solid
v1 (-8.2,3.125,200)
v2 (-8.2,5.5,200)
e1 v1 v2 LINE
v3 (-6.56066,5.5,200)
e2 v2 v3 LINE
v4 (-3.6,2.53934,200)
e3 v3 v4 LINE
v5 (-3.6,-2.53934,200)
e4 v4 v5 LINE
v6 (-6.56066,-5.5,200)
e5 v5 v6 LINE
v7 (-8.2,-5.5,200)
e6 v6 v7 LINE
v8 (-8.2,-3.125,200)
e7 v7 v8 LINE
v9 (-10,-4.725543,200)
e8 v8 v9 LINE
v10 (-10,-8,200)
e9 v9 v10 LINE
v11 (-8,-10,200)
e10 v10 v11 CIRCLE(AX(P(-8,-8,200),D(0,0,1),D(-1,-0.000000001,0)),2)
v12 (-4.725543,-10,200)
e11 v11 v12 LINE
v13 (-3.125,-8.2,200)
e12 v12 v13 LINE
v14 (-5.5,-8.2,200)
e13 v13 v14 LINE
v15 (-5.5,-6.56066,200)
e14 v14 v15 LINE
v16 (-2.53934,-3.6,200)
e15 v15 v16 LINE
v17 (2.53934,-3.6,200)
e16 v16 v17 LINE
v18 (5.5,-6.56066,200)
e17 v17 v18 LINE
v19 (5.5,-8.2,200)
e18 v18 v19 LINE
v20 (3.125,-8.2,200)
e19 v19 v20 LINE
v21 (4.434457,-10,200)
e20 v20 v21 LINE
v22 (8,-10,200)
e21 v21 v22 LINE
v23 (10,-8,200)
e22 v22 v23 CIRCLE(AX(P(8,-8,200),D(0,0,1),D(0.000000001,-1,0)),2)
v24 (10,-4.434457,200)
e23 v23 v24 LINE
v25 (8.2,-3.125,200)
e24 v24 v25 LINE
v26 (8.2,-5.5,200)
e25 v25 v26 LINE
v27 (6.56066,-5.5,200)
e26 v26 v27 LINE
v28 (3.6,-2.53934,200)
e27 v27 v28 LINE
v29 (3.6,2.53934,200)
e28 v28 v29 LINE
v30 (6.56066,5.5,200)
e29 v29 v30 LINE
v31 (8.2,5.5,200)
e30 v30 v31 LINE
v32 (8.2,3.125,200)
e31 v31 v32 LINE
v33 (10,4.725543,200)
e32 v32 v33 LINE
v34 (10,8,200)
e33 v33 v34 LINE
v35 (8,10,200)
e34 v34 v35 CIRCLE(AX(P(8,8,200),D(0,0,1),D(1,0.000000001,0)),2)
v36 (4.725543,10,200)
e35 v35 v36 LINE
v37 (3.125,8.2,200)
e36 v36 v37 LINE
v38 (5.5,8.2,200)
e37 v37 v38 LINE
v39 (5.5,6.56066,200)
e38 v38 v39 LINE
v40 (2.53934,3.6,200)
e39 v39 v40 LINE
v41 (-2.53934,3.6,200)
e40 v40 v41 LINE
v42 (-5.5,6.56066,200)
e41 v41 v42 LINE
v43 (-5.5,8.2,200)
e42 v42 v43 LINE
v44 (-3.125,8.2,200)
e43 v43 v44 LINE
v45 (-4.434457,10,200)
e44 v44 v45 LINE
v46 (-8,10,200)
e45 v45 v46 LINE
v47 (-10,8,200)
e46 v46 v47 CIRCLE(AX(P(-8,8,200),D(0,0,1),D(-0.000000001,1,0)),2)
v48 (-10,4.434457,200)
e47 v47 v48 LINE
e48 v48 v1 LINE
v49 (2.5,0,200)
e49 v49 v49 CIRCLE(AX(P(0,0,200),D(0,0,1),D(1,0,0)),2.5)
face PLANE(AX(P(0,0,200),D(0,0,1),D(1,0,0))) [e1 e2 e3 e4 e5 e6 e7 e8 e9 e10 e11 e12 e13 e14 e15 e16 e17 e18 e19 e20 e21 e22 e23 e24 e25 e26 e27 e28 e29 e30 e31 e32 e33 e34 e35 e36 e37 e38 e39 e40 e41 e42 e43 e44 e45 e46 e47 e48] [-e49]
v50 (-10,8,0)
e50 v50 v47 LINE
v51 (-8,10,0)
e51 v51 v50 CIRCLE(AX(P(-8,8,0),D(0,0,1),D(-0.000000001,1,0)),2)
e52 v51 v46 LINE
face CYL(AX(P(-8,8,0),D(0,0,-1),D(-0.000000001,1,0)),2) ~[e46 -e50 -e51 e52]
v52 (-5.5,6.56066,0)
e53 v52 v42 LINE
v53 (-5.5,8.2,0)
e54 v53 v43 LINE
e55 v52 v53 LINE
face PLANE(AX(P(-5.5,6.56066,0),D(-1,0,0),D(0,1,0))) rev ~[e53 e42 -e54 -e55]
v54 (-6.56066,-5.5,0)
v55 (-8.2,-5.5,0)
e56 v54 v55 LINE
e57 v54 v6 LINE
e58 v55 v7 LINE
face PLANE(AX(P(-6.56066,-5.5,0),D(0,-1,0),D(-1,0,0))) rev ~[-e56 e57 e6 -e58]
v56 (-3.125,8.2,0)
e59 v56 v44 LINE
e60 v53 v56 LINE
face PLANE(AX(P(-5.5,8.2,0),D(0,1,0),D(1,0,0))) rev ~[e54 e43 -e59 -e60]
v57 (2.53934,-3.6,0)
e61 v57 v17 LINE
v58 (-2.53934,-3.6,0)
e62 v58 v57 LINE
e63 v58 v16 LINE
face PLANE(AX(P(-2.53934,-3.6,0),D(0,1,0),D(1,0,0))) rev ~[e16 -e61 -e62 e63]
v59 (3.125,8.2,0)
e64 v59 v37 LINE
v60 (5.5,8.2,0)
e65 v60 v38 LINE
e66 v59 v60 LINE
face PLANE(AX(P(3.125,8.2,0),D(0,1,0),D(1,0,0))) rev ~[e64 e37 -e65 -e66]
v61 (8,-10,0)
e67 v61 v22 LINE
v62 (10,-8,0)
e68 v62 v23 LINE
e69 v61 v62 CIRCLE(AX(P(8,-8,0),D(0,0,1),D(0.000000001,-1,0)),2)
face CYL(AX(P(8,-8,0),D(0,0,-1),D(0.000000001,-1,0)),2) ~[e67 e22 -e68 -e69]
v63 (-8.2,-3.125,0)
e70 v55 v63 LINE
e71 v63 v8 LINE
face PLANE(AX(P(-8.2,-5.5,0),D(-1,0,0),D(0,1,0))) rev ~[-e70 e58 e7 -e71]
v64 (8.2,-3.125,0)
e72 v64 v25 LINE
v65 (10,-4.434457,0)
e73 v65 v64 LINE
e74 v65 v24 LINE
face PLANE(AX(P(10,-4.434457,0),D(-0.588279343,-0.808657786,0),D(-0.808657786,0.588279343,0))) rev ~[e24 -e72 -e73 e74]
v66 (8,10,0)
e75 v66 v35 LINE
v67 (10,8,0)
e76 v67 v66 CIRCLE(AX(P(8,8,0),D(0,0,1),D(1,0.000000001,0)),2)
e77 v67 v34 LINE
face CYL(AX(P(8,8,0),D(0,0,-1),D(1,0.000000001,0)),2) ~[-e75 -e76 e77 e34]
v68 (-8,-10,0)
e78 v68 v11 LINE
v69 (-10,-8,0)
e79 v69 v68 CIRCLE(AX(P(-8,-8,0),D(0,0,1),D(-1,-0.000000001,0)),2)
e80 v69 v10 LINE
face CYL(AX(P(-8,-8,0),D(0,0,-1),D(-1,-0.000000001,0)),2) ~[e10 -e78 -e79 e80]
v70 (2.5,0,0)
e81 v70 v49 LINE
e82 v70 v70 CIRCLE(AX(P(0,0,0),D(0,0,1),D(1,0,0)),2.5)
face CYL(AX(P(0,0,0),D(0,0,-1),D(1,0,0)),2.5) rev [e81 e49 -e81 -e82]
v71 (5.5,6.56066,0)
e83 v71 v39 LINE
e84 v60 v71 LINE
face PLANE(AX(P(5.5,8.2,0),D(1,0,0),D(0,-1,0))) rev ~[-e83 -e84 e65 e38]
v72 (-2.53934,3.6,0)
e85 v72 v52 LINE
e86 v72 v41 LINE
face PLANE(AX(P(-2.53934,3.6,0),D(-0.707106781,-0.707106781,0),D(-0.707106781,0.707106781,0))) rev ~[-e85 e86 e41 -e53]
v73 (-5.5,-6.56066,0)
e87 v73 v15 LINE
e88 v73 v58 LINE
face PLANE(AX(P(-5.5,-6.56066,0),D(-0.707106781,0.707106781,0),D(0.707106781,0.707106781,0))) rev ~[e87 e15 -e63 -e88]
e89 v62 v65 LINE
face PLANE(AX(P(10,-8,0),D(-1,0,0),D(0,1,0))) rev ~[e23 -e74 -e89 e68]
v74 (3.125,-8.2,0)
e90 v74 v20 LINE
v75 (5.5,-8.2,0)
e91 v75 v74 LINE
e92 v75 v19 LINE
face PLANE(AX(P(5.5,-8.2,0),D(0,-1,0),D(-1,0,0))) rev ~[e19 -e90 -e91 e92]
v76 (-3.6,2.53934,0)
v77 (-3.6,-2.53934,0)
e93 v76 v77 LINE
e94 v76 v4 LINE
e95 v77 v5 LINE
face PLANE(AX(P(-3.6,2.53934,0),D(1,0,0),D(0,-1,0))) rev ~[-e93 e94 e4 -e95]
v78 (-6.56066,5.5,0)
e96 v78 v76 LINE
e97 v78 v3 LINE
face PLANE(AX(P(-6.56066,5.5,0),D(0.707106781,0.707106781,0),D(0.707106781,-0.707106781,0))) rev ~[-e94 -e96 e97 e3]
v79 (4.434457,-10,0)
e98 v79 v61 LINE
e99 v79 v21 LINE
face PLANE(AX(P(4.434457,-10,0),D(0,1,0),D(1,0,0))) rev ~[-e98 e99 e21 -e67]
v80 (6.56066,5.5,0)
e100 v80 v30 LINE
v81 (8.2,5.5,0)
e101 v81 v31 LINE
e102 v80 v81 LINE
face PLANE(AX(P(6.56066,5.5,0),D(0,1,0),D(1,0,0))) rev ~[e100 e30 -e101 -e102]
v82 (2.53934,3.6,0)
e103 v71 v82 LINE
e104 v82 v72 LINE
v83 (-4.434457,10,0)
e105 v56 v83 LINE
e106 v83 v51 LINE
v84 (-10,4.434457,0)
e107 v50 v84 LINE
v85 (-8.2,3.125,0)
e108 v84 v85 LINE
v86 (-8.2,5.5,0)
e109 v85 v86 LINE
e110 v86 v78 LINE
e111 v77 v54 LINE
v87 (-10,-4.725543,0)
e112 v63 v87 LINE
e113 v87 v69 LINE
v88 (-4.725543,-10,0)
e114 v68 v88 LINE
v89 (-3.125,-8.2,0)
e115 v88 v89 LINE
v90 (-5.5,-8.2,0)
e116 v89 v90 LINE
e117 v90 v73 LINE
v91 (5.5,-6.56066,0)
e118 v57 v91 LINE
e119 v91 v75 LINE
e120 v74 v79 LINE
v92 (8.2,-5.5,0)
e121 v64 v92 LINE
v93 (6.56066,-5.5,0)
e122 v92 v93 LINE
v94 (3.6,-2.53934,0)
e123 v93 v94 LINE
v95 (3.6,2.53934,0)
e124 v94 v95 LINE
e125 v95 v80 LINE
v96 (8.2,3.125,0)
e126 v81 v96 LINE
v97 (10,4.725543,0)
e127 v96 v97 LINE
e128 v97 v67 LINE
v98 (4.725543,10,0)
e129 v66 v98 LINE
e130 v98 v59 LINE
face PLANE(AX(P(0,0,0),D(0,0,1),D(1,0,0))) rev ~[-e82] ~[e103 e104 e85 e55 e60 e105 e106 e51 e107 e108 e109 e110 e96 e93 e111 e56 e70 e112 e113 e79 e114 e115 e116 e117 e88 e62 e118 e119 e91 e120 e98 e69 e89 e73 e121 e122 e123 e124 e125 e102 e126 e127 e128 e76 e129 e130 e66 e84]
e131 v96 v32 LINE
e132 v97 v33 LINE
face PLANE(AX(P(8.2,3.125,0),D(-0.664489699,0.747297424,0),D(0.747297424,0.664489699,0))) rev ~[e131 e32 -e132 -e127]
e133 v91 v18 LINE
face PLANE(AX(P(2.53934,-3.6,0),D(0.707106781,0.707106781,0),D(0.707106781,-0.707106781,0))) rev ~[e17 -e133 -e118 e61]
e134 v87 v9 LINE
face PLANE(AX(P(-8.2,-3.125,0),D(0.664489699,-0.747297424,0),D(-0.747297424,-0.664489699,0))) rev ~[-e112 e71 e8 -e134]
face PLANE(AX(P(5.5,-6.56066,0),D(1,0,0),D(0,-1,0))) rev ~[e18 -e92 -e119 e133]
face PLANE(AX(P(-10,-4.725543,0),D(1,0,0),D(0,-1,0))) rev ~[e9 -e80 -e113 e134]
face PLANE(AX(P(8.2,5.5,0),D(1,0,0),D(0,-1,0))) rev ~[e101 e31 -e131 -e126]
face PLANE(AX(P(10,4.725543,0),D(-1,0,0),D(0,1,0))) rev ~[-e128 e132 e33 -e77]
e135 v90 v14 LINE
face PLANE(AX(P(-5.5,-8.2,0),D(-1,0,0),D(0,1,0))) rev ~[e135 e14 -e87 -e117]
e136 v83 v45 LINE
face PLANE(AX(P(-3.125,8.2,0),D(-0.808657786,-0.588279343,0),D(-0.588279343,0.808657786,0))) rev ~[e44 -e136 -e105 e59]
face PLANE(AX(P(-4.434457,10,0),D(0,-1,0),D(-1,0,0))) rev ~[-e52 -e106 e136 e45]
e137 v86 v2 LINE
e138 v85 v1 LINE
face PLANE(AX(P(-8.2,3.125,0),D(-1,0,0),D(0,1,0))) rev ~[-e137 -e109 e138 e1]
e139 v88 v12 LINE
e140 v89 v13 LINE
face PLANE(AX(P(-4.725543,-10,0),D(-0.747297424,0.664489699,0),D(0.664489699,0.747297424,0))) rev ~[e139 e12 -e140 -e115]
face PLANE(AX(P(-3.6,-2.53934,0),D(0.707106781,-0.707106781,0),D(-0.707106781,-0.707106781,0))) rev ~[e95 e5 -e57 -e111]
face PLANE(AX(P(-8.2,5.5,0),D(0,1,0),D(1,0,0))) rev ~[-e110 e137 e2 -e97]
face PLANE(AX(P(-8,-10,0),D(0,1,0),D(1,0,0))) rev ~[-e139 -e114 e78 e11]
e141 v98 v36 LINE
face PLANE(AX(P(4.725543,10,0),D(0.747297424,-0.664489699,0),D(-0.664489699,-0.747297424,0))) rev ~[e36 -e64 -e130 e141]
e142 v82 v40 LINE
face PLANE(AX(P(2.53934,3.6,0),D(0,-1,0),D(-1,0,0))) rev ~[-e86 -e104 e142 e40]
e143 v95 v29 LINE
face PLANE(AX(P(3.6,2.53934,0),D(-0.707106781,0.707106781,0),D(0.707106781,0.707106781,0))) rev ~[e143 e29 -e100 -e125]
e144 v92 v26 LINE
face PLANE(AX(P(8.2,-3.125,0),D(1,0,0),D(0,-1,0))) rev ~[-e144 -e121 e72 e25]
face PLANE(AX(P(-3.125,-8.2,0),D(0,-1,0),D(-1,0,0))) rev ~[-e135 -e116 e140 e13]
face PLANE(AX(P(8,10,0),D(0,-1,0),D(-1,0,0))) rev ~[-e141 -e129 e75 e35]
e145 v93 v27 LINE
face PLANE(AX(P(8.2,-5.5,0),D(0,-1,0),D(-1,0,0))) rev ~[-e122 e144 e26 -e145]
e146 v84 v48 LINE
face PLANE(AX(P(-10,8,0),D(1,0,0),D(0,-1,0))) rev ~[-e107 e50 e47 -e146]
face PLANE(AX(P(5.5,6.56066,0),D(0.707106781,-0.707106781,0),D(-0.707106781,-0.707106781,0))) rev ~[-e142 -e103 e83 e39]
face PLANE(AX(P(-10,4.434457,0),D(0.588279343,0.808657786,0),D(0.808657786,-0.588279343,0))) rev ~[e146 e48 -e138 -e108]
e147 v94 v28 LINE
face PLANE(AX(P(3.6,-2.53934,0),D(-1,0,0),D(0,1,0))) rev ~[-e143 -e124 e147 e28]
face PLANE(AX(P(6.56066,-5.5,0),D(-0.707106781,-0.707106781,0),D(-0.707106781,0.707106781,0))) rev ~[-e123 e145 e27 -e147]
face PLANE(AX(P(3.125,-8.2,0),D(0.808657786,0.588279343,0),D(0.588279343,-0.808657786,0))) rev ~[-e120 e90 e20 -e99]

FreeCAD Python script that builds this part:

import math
import FreeCAD as App
import Part
import Sketcher
from FreeCAD import Vector
Q = App.Units.Quantity

doc = App.newDocument("Part")
body = doc.addObject("PartDesign::Body", "Body")

# Sketch on XY plane
sketch1 = body.newObject("Sketcher::SketchObject", "Sketch")
sketch1.AttachmentSupport = (doc.getObject("XY_Plane"), [""])
sketch1.MapMode = "FlatFace"
sketch1.addGeometry([
    Part.LineSegment(Vector(-4.725543, -10, 0), Vector(-3.125, -8.2, 0)),  # 0
    Part.LineSegment(Vector(-3.125, -8.2, 0), Vector(-5.5, -8.2, 0)),  # 1
    Part.LineSegment(Vector(-5.5, -8.2, 0), Vector(-5.5, -6.56066, 0)),  # 2
    Part.LineSegment(Vector(-5.5, -6.56066, 0), Vector(-2.53934, -3.6, 0)),  # 3
    Part.LineSegment(Vector(-2.53934, -3.6, 0), Vector(2.53934, -3.6, 0)),  # 4
    Part.LineSegment(Vector(2.53934, -3.6, 0), Vector(5.5, -6.56066, 0)),  # 5
    Part.LineSegment(Vector(5.5, -6.56066, 0), Vector(5.5, -8.2, 0)),  # 6
    Part.LineSegment(Vector(5.5, -8.2, 0), Vector(3.125, -8.2, 0)),  # 7
    Part.LineSegment(Vector(3.125, -8.2, 0), Vector(4.434457, -10, 0)),  # 8
    Part.LineSegment(Vector(4.434457, -10, 0), Vector(8, -10, 0)),  # 9
    Part.ArcOfCircle(Part.Circle(Vector(8, -8, 0), Vector(0, 0, 1), 2), math.radians(-90), math.radians(0)),  # 10
    Part.LineSegment(Vector(10, -8, 0), Vector(10, -4.434457, 0)),  # 11
    Part.LineSegment(Vector(10, -4.434457, 0), Vector(8.2, -3.125, 0)),  # 12
    Part.LineSegment(Vector(8.2, -3.125, 0), Vector(8.2, -5.5, 0)),  # 13
    Part.LineSegment(Vector(8.2, -5.5, 0), Vector(6.56066, -5.5, 0)),  # 14
    Part.LineSegment(Vector(6.56066, -5.5, 0), Vector(3.6, -2.53934, 0)),  # 15
    Part.LineSegment(Vector(3.6, -2.53934, 0), Vector(3.6, 2.53934, 0)),  # 16
    Part.LineSegment(Vector(3.6, 2.53934, 0), Vector(6.56066, 5.5, 0)),  # 17
    Part.LineSegment(Vector(6.56066, 5.5, 0), Vector(8.2, 5.5, 0)),  # 18
    Part.LineSegment(Vector(8.2, 5.5, 0), Vector(8.2, 3.125, 0)),  # 19
    Part.LineSegment(Vector(8.2, 3.125, 0), Vector(10, 4.725543, 0)),  # 20
    Part.LineSegment(Vector(10, 4.725543, 0), Vector(10, 8, 0)),  # 21
    Part.ArcOfCircle(Part.Circle(Vector(8, 8, 0), Vector(0, 0, 1), 2), math.radians(0), math.radians(90)),  # 22
    Part.LineSegment(Vector(8, 10, 0), Vector(4.725543, 10, 0)),  # 23
    Part.LineSegment(Vector(4.725543, 10, 0), Vector(3.125, 8.2, 0)),  # 24
    Part.LineSegment(Vector(3.125, 8.2, 0), Vector(5.5, 8.2, 0)),  # 25
    Part.LineSegment(Vector(5.5, 8.2, 0), Vector(5.5, 6.56066, 0)),  # 26
    Part.LineSegment(Vector(5.5, 6.56066, 0), Vector(2.53934, 3.6, 0)),  # 27
    Part.LineSegment(Vector(2.53934, 3.6, 0), Vector(-2.53934, 3.6, 0)),  # 28
    Part.LineSegment(Vector(-2.53934, 3.6, 0), Vector(-5.5, 6.56066, 0)),  # 29
    Part.LineSegment(Vector(-5.5, 6.56066, 0), Vector(-5.5, 8.2, 0)),  # 30
    Part.LineSegment(Vector(-5.5, 8.2, 0), Vector(-3.125, 8.2, 0)),  # 31
    Part.LineSegment(Vector(-3.125, 8.2, 0), Vector(-4.434457, 10, 0)),  # 32
    Part.LineSegment(Vector(-4.434457, 10, 0), Vector(-8, 10, 0)),  # 33
    Part.ArcOfCircle(Part.Circle(Vector(-8, 8, 0), Vector(0, 0, 1), 2), math.radians(90), math.radians(180)),  # 34
    Part.LineSegment(Vector(-10, 8, 0), Vector(-10, 4.434457, 0)),  # 35
    Part.LineSegment(Vector(-10, 4.434457, 0), Vector(-8.2, 3.125, 0)),  # 36
    Part.LineSegment(Vector(-8.2, 3.125, 0), Vector(-8.2, 5.5, 0)),  # 37
    Part.LineSegment(Vector(-8.2, 5.5, 0), Vector(-6.56066, 5.5, 0)),  # 38
    Part.LineSegment(Vector(-6.56066, 5.5, 0), Vector(-3.6, 2.53934, 0)),  # 39
    Part.LineSegment(Vector(-3.6, 2.53934, 0), Vector(-3.6, -2.53934, 0)),  # 40
    Part.LineSegment(Vector(-3.6, -2.53934, 0), Vector(-6.56066, -5.5, 0)),  # 41
    Part.LineSegment(Vector(-6.56066, -5.5, 0), Vector(-8.2, -5.5, 0)),  # 42
    Part.LineSegment(Vector(-8.2, -5.5, 0), Vector(-8.2, -3.125, 0)),  # 43
    Part.LineSegment(Vector(-8.2, -3.125, 0), Vector(-10, -4.725543, 0)),  # 44
    Part.LineSegment(Vector(-10, -4.725543, 0), Vector(-10, -8, 0)),  # 45
    Part.ArcOfCircle(Part.Circle(Vector(-8, -8, 0), Vector(0, 0, 1), 2), math.radians(-180), math.radians(-90)),  # 46
    Part.LineSegment(Vector(-8, -10, 0), Vector(-4.725543, -10, 0)),  # 47
    Part.Circle(Vector(0, 0, 0), Vector(0, 0, 1), 2.5),  # 48
], False)
sketch1.addConstraint([
    Sketcher.Constraint("Coincident", 0, 2, 1, 1),
    Sketcher.Constraint("Coincident", 1, 2, 2, 1),
    Sketcher.Constraint("Coincident", 2, 2, 3, 1),
    Sketcher.Constraint("Coincident", 3, 2, 4, 1),
    Sketcher.Constraint("Coincident", 4, 2, 5, 1),
    Sketcher.Constraint("Coincident", 5, 2, 6, 1),
    Sketcher.Constraint("Coincident", 6, 2, 7, 1),
    Sketcher.Constraint("Coincident", 7, 2, 8, 1),
    Sketcher.Constraint("Coincident", 8, 2, 9, 1),
    Sketcher.Constraint("Tangent", 9, 2, 10, 1),
    Sketcher.Constraint("Tangent", 10, 2, 11, 1),
    Sketcher.Constraint("Coincident", 11, 2, 12, 1),
    Sketcher.Constraint("Coincident", 12, 2, 13, 1),
    Sketcher.Constraint("Coincident", 13, 2, 14, 1),
    Sketcher.Constraint("Coincident", 14, 2, 15, 1),
    Sketcher.Constraint("Coincident", 15, 2, 16, 1),
    Sketcher.Constraint("Coincident", 16, 2, 17, 1),
    Sketcher.Constraint("Coincident", 17, 2, 18, 1),
    Sketcher.Constraint("Coincident", 18, 2, 19, 1),
    Sketcher.Constraint("Coincident", 19, 2, 20, 1),
    Sketcher.Constraint("Coincident", 20, 2, 21, 1),
    Sketcher.Constraint("Tangent", 21, 2, 22, 1),
    Sketcher.Constraint("Tangent", 22, 2, 23, 1),
    Sketcher.Constraint("Coincident", 23, 2, 24, 1),
    Sketcher.Constraint("Coincident", 24, 2, 25, 1),
    Sketcher.Constraint("Coincident", 25, 2, 26, 1),
    Sketcher.Constraint("Coincident", 26, 2, 27, 1),
    Sketcher.Constraint("Coincident", 27, 2, 28, 1),
    Sketcher.Constraint("Coincident", 28, 2, 29, 1),
    Sketcher.Constraint("Coincident", 29, 2, 30, 1),
    Sketcher.Constraint("Coincident", 30, 2, 31, 1),
    Sketcher.Constraint("Coincident", 31, 2, 32, 1),
    Sketcher.Constraint("Coincident", 32, 2, 33, 1),
    Sketcher.Constraint("Tangent", 33, 2, 34, 1),
    Sketcher.Constraint("Tangent", 34, 2, 35, 1),
    Sketcher.Constraint("Coincident", 35, 2, 36, 1),
    Sketcher.Constraint("Coincident", 36, 2, 37, 1),
    Sketcher.Constraint("Coincident", 37, 2, 38, 1),
    Sketcher.Constraint("Coincident", 38, 2, 39, 1),
    Sketcher.Constraint("Coincident", 39, 2, 40, 1),
    Sketcher.Constraint("Coincident", 40, 2, 41, 1),
    Sketcher.Constraint("Coincident", 41, 2, 42, 1),
    Sketcher.Constraint("Coincident", 42, 2, 43, 1),
    Sketcher.Constraint("Coincident", 43, 2, 44, 1),
    Sketcher.Constraint("Coincident", 44, 2, 45, 1),
    Sketcher.Constraint("Tangent", 45, 2, 46, 1),
    Sketcher.Constraint("Tangent", 46, 2, 47, 1),
    Sketcher.Constraint("Coincident", 47, 2, 0, 1),
    Sketcher.Constraint("Horizontal", 1),
    Sketcher.Constraint("Vertical", 2),
    Sketcher.Constraint("Horizontal", 4),
    Sketcher.Constraint("Vertical", 6),
    Sketcher.Constraint("Horizontal", 7),
    Sketcher.Constraint("Horizontal", 9),
    Sketcher.Constraint("Vertical", 11),
    Sketcher.Constraint("Vertical", 13),
    Sketcher.Constraint("Horizontal", 14),
    Sketcher.Constraint("Vertical", 16),
    Sketcher.Constraint("Horizontal", 18),
    Sketcher.Constraint("Vertical", 19),
    Sketcher.Constraint("Vertical", 21),
    Sketcher.Constraint("Horizontal", 23),
    Sketcher.Constraint("Horizontal", 25),
    Sketcher.Constraint("Vertical", 26),
    Sketcher.Constraint("Horizontal", 28),
    Sketcher.Constraint("Vertical", 30),
    Sketcher.Constraint("Horizontal", 31),
    Sketcher.Constraint("Horizontal", 33),
    Sketcher.Constraint("Vertical", 35),
    Sketcher.Constraint("Vertical", 37),
    Sketcher.Constraint("Horizontal", 38),
    Sketcher.Constraint("Vertical", 40),
    Sketcher.Constraint("Horizontal", 42),
    Sketcher.Constraint("Vertical", 43),
    Sketcher.Constraint("Vertical", 45),
    Sketcher.Constraint("Horizontal", 47),
    Sketcher.Constraint("Coincident", 48, 3, -1, 1),
    Sketcher.Constraint("Equal", 10, 22),
    Sketcher.Constraint("Equal", 22, 34),
    Sketcher.Constraint("Equal", 34, 46),
    Sketcher.Constraint("Symmetric", 10, 3, 34, 3, -1, 1),
    Sketcher.Constraint("Symmetric", 22, 3, 46, 3, -1, 1),
    Sketcher.Constraint("Symmetric", 0, 2, 24, 2, -1, 1),
    Sketcher.Constraint("Symmetric", 2, 2, 26, 2, -1, 1),
    Sketcher.Constraint("Symmetric", 3, 2, 27, 2, -1, 1),
    Sketcher.Constraint("Symmetric", 5, 2, 29, 2, -1, 1),
    Sketcher.Constraint("Symmetric", 7, 2, 31, 2, -1, 1),
    Sketcher.Constraint("Symmetric", 12, 2, 36, 2, -1, 1),
    Sketcher.Constraint("Symmetric", 14, 2, 38, 2, -1, 1),
    Sketcher.Constraint("Symmetric", 15, 2, 39, 2, -1, 1),
    Sketcher.Constraint("Symmetric", 17, 2, 41, 2, -1, 1),
    Sketcher.Constraint("Symmetric", 19, 2, 43, 2, -1, 1),
    Sketcher.Constraint("Symmetric", 22, 3, 34, 3, -2),
    Sketcher.Constraint("Symmetric", 2, 2, 5, 2, -2),
    Sketcher.Constraint("Symmetric", 0, 2, 7, 2, -2),
    Sketcher.Constraint("Symmetric", 19, 2, 36, 2, -2),
    Sketcher.Constraint("Symmetric", 17, 2, 38, 2, -2),
    Sketcher.Constraint("Perpendicular", 3, 5),
    Sketcher.Constraint("Parallel", 5, 15),
    Sketcher.Constraint("Perpendicular", 15, 17),
    Sketcher.Constraint("Parallel", 0, 24),
    Sketcher.Constraint("Perpendicular", 27, 29),
    Sketcher.Constraint("Parallel", 8, 32),
    Sketcher.Constraint("Parallel", 12, 36),
    Sketcher.Constraint("Perpendicular", 39, 41),
    Sketcher.Constraint("Parallel", 20, 44),
    Sketcher.Constraint("Horizontal", 16, 2, 39, 2),
    Sketcher.Constraint("Equal", 42, 2),
    Sketcher.Constraint("Equal", 33, 11),
    Sketcher.Constraint("Equal", 31, 13),
    Sketcher.Constraint("Equal", 28, 16),
    Sketcher.Constraint("Equal", 47, 21),
    Sketcher.Constraint("Equal", 8, 12),
    Sketcher.Constraint("Equal", 5, 15),
    Sketcher.Constraint("Equal", 0, 20),
    Sketcher.Constraint("Diameter", 48, Q("5 mm")),
    Sketcher.Constraint("Radius", 10, Q("2 mm")),
    Sketcher.Constraint("DistanceX", -1, 1, 10, 3, Q("8 mm")),
    Sketcher.Constraint("DistanceY", 0, 2, -1, 1, Q("8.2 mm")),
    Sketcher.Constraint("DistanceX", 1, 2, -1, 1, Q("5.5 mm")),
    Sketcher.Constraint("DistanceY", 3, 2, -1, 1, Q("3.6 mm")),
    Sketcher.Constraint("DistanceX", 1, 2, 1, 1, Q("2.375 mm")),
    Sketcher.Constraint("DistanceX", 4, 1, 4, 2, Q("5.07868 mm")),
    Sketcher.Constraint("Distance", 0, Q("2.40868 mm")),
    Sketcher.Constraint("Distance", 8, Q("2.225911 mm")),
])
pad1 = body.newObject("PartDesign::Pad", "Pad")
pad1.Profile = sketch1
pad1.Length = 200

doc.recompute()
